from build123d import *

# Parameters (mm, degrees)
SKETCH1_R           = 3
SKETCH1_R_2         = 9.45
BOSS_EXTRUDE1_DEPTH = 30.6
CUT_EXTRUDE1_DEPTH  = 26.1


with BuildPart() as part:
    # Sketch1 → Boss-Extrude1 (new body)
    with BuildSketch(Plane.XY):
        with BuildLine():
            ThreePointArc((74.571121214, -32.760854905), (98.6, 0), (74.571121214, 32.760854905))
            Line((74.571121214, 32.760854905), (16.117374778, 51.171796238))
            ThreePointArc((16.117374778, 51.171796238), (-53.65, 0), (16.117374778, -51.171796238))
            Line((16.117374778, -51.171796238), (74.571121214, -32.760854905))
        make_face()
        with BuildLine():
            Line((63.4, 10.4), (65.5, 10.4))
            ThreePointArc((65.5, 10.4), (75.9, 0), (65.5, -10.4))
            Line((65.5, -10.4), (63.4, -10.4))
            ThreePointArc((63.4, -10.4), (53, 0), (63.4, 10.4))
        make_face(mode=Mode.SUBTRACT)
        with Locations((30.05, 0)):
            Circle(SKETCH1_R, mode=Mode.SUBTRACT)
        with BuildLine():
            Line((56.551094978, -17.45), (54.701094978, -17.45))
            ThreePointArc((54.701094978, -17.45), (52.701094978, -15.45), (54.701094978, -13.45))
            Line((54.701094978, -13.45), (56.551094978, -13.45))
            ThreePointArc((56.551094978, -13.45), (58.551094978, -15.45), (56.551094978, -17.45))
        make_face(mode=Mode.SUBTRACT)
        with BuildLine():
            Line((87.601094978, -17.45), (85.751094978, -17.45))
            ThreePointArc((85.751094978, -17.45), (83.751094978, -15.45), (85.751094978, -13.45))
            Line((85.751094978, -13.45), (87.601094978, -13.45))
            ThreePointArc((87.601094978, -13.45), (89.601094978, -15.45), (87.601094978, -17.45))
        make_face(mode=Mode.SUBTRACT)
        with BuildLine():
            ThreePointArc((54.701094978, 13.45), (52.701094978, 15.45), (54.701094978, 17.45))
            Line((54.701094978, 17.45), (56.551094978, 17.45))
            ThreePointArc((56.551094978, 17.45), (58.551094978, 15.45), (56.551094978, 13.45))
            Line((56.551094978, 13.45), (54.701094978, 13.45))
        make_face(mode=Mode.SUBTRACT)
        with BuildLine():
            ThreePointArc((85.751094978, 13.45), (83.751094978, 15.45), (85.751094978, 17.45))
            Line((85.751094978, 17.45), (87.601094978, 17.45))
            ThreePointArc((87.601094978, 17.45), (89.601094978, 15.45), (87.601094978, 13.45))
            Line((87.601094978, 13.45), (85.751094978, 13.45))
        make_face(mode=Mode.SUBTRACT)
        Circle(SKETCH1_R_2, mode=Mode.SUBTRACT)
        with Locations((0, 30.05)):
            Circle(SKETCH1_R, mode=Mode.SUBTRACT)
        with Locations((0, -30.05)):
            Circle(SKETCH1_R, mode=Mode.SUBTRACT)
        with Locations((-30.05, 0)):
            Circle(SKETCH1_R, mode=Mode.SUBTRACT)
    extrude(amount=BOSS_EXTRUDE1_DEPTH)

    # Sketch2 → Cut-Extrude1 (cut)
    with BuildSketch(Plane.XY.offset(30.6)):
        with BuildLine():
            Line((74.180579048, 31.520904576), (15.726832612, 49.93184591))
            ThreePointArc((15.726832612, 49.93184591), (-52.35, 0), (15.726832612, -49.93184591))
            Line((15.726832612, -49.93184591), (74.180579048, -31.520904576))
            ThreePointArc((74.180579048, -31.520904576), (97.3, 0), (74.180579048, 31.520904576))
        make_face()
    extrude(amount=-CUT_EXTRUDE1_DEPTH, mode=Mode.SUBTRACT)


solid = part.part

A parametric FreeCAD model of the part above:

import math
import FreeCAD as App
import Part
import Sketcher

V = App.Vector

doc = App.newDocument("Part")
params = doc.addObject("Spreadsheet::Sheet", "Params")
for row, (alias, value) in enumerate([
    ("sketch1_diameter", "6 mm"),
    ("sketch1_radius", "2 mm"),
    ("sketch1_diameter2", "18.9 mm"),
    ("sketch1_radius2", "10.4 mm"),
    ("sketch1_radius3", "53.65 mm"),
    ("pad1_length", "30.6 mm"),
    ("sketch2_radius", "52.35 mm"),
    ("pocket1_length", "26.1 mm"),
], start=1):
    params.set(f"A{row}", alias)
    params.set(f"B{row}", "=" + value)
    params.setAlias(f"B{row}", alias)

body = doc.addObject("PartDesign::Body", "Body")

sketch1 = body.newObject("Sketcher::SketchObject", "Sketch")
sketch1.AttachmentSupport = (doc.getObject("XY_Plane"), [""])
sketch1.MapMode = "FlatFace"
sketch1.addGeometry(Part.ArcOfCircle(Part.Circle(V(64.3, 0, 0), V(0, 0, 1), 34.3), math.radians(-73), math.radians(73)), False)
sketch1.addGeometry(Part.LineSegment(V(74.6, 32.8, 0), V(16.1, 51.2, 0)), False)
sketch1.addGeometry(Part.ArcOfCircle(Part.Circle(V(0, 0, 0), V(0, 0, 1), 53.6), math.radians(73), math.radians(287)), False)
sketch1.addGeometry(Part.LineSegment(V(16.1, -51.2, 0), V(74.6, -32.8, 0)), False)
sketch1.addGeometry(Part.Circle(V(0, -30.1, 0), V(0, 0, 1), 3), False)
sketch1.addGeometry(Part.ArcOfCircle(Part.Circle(V(56.6, -15.4, 0), V(0, 0, 1), 2), math.radians(-90), math.radians(90)), False)
sketch1.addGeometry(Part.LineSegment(V(56.6, -17.4, 0), V(54.7, -17.4, 0)), False)
sketch1.addGeometry(Part.ArcOfCircle(Part.Circle(V(54.7, -15.4, 0), V(0, 0, 1), 2), math.radians(90), math.radians(270)), False)
sketch1.addGeometry(Part.LineSegment(V(54.7, -13.4, 0), V(56.6, -13.4, 0)), False)
sketch1.addGeometry(Part.ArcOfCircle(Part.Circle(V(87.6, -15.4, 0), V(0, 0, 1), 2), math.radians(-90), math.radians(90)), False)
sketch1.addGeometry(Part.LineSegment(V(87.6, -17.4, 0), V(85.8, -17.4, 0)), False)
sketch1.addGeometry(Part.ArcOfCircle(Part.Circle(V(85.8, -15.4, 0), V(0, 0, 1), 2), math.radians(90), math.radians(270)), False)
sketch1.addGeometry(Part.LineSegment(V(85.8, -13.4, 0), V(87.6, -13.4, 0)), False)
sketch1.addGeometry(Part.Circle(V(-30.1, 0, 0), V(0, 0, 1), 3), False)
sketch1.addGeometry(Part.Circle(V(0, 0, 0), V(0, 0, 1), 9.4), False)
sketch1.addGeometry(Part.Circle(V(0, 30.1, 0), V(0, 0, 1), 3), False)
sketch1.addGeometry(Part.Circle(V(30.1, 0, 0), V(0, 0, 1), 3), False)
sketch1.addGeometry(Part.LineSegment(V(56.6, 13.4, 0), V(54.7, 13.4, 0)), False)
sketch1.addGeometry(Part.ArcOfCircle(Part.Circle(V(54.7, 15.4, 0), V(0, 0, 1), 2), math.radians(90), math.radians(270)), False)
sketch1.addGeometry(Part.LineSegment(V(54.7, 17.4, 0), V(56.6, 17.4, 0)), False)
sketch1.addGeometry(Part.ArcOfCircle(Part.Circle(V(56.6, 15.4, 0), V(0, 0, 1), 2), math.radians(-90), math.radians(90)), False)
sketch1.addGeometry(Part.ArcOfCircle(Part.Circle(V(63.4, 0, 0), V(0, 0, 1), 10.4), math.radians(90), math.radians(270)), False)
sketch1.addGeometry(Part.LineSegment(V(63.4, 10.4, 0), V(65.5, 10.4, 0)), False)
sketch1.addGeometry(Part.ArcOfCircle(Part.Circle(V(65.5, 0, 0), V(0, 0, 1), 10.4), math.radians(-90), math.radians(90)), False)
sketch1.addGeometry(Part.LineSegment(V(65.5, -10.4, 0), V(63.4, -10.4, 0)), False)
sketch1.addGeometry(Part.LineSegment(V(87.6, 13.4, 0), V(85.8, 13.4, 0)), False)
sketch1.addGeometry(Part.ArcOfCircle(Part.Circle(V(85.8, 15.4, 0), V(0, 0, 1), 2), math.radians(90), math.radians(270)), False)
sketch1.addGeometry(Part.LineSegment(V(85.8, 17.4, 0), V(87.6, 17.4, 0)), False)
sketch1.addGeometry(Part.ArcOfCircle(Part.Circle(V(87.6, 15.4, 0), V(0, 0, 1), 2), math.radians(-90), math.radians(90)), False)
sketch1.addConstraint(Sketcher.Constraint("Tangent", 0, 2, 1, 1))
sketch1.addConstraint(Sketcher.Constraint("Tangent", 1, 2, 2, 1))
sketch1.addConstraint(Sketcher.Constraint("Tangent", 2, 2, 3, 1))
sketch1.addConstraint(Sketcher.Constraint("Tangent", 3, 2, 0, 1))
sketch1.addConstraint(Sketcher.Constraint("Tangent", 5, 1, 6, 1))
sketch1.addConstraint(Sketcher.Constraint("Tangent", 6, 2, 7, 2))
sketch1.addConstraint(Sketcher.Constraint("Tangent", 7, 1, 8, 1))
sketch1.addConstraint(Sketcher.Constraint("Tangent", 8, 2, 5, 2))
sketch1.addConstraint(Sketcher.Constraint("Tangent", 9, 1, 10, 1))
sketch1.addConstraint(Sketcher.Constraint("Tangent", 10, 2, 11, 2))
sketch1.addConstraint(Sketcher.Constraint("Tangent", 11, 1, 12, 1))
sketch1.addConstraint(Sketcher.Constraint("Tangent", 12, 2, 9, 2))
sketch1.addConstraint(Sketcher.Constraint("Tangent", 17, 2, 18, 2))
sketch1.addConstraint(Sketcher.Constraint("Tangent", 18, 1, 19, 1))
sketch1.addConstraint(Sketcher.Constraint("Tangent", 19, 2, 20, 2))
sketch1.addConstraint(Sketcher.Constraint("Tangent", 20, 1, 17, 1))
sketch1.addConstraint(Sketcher.Constraint("Tangent", 21, 1, 22, 1))
sketch1.addConstraint(Sketcher.Constraint("Tangent", 22, 2, 23, 2))
sketch1.addConstraint(Sketcher.Constraint("Tangent", 23, 1, 24, 1))
sketch1.addConstraint(Sketcher.Constraint("Tangent", 24, 2, 21, 2))
sketch1.addConstraint(Sketcher.Constraint("Tangent", 25, 2, 26, 2))
sketch1.addConstraint(Sketcher.Constraint("Tangent", 26, 1, 27, 1))
sketch1.addConstraint(Sketcher.Constraint("Tangent", 27, 2, 28, 2))
sketch1.addConstraint(Sketcher.Constraint("Tangent", 28, 1, 25, 1))
sketch1.addConstraint(Sketcher.Constraint("Horizontal", 6))
sketch1.addConstraint(Sketcher.Constraint("Horizontal", 8))
sketch1.addConstraint(Sketcher.Constraint("Horizontal", 10))
sketch1.addConstraint(Sketcher.Constraint("Horizontal", 12))
sketch1.addConstraint(Sketcher.Constraint("Horizontal", 17))
sketch1.addConstraint(Sketcher.Constraint("Horizontal", 19))
sketch1.addConstraint(Sketcher.Constraint("Horizontal", 22))
sketch1.addConstraint(Sketcher.Constraint("Horizontal", 24))
sketch1.addConstraint(Sketcher.Constraint("Horizontal", 25))
sketch1.addConstraint(Sketcher.Constraint("Horizontal", 27))
sketch1.addConstraint(Sketcher.Constraint("Coincident", 2, 3, -1, 1))
sketch1.addConstraint(Sketcher.Constraint("Coincident", 14, 3, -1, 1))
sketch1.addConstraint(Sketcher.Constraint("Equal", 7, 9))
sketch1.addConstraint(Sketcher.Constraint("Equal", 4, 13))
sketch1.addConstraint(Sketcher.Constraint("Equal", 13, 15))
sketch1.addConstraint(Sketcher.Constraint("Equal", 15, 16))
sketch1.addConstraint(Sketcher.Constraint("Equal", 11, 18))
sketch1.addConstraint(Sketcher.Constraint("Equal", 20, 26))
sketch1.addConstraint(Sketcher.Constraint("Symmetric", 4, 3, 15, 3, -1, 1))
sketch1.addConstraint(Sketcher.Constraint("Symmetric", 13, 3, 16, 3, -1, 1))
sketch1.addConstraint(Sketcher.Constraint("Symmetric", 7, 3, 18, 3, -1))
sketch1.addConstraint(Sketcher.Constraint("Symmetric", 11, 3, 26, 3, -1))
sketch1.addConstraint(Sketcher.Constraint("PointOnObject", 0, 3, -1))
sketch1.addConstraint(Sketcher.Constraint("PointOnObject", 4, 3, -2))
sketch1.addConstraint(Sketcher.Constraint("PointOnObject", 13, 3, -1))
sketch1.addConstraint(Sketcher.Constraint("PointOnObject", 21, 3, -1))
sketch1.addConstraint(Sketcher.Constraint("Horizontal", 7, 3, 9, 3))
sketch1.addConstraint(Sketcher.Constraint("Vertical", 5, 3, 20, 3))
sketch1.addConstraint(Sketcher.Constraint("Vertical", 9, 3, 28, 3))
sketch1.addConstraint(Sketcher.Constraint("Equal", 8, 10))
sketch1.addConstraint(Sketcher.Constraint("Diameter", 4, 6.0))
sketch1.addConstraint(Sketcher.Constraint("Radius", 5, 2.0))
sketch1.addConstraint(Sketcher.Constraint("Diameter", 14, 18.9))
sketch1.addConstraint(Sketcher.Constraint("Radius", 21, 10.4))
sketch1.addConstraint(Sketcher.Constraint("Radius", 2, 53.65))
sketch1.addConstraint(Sketcher.Constraint("DistanceX", 22, 1, 22, 2, 2.1))
sketch1.addConstraint(Sketcher.Constraint("DistanceX", 6, 2, 6, 1, 1.85))
sketch1.addConstraint(Sketcher.Constraint("DistanceX", -1, 1, 21, 3, 63.4))
sketch1.addConstraint(Sketcher.Constraint("DistanceY", 4, 3, 5, 3, 14.6))
sketch1.addConstraint(Sketcher.Constraint("DistanceX", 7, 3, 9, 3, 32.9))
sketch1.addConstraint(Sketcher.Constraint("DistanceY", 4, 3, 15, 3, 60.1))
sketch1.addConstraint(Sketcher.Constraint("DistanceX", 13, 3, -1, 1, 30.05))
sketch1.addConstraint(Sketcher.Constraint("Radius", 0, 34.347433))
sketch1.addConstraint(Sketcher.Constraint("Distance", 1, 61.284608))
sketch1.addConstraint(Sketcher.Constraint("DistanceX", 5, 3, 0, 3, 7.701472))
sketch1.setExpression("Constraints[54]", "Params.sketch1_diameter")
sketch1.setExpression("Constraints[55]", "Params.sketch1_radius")
sketch1.setExpression("Constraints[56]", "Params.sketch1_diameter2")
sketch1.setExpression("Constraints[57]", "Params.sketch1_radius2")
sketch1.setExpression("Constraints[58]", "Params.sketch1_radius3")
pad1 = body.newObject("PartDesign::Pad", "Pad")
pad1.Profile = sketch1
pad1.setExpression("Length", "Params.pad1_length")

sketch2 = body.newObject("Sketcher::SketchObject", "Sketch001")
sketch2.AttachmentSupport = (doc.getObject("XY_Plane"), [""])
sketch2.MapMode = "FlatFace"
sketch2.AttachmentOffset = App.Placement(V(0, 0, 30.6), App.Rotation())
sketch2.addGeometry(Part.LineSegment(V(74, 32, 0), V(16, 50, 0)), False)
sketch2.addGeometry(Part.ArcOfCircle(Part.Circle(V(0, 0, 0), V(0, 0, 1), 52), math.radians(73), math.radians(287)), False)
sketch2.addGeometry(Part.LineSegment(V(16, -50, 0), V(74, -32, 0)), False)
sketch2.addGeometry(Part.ArcOfCircle(Part.Circle(V(64, 0, 0), V(0, 0, 1), 33), math.radians(-73), math.radians(73)), False)
sketch2.addConstraint(Sketcher.Constraint("Tangent", 0, 2, 1, 1))
sketch2.addConstraint(Sketcher.Constraint("Tangent", 1, 2, 2, 1))
sketch2.addConstraint(Sketcher.Constraint("Tangent", 2, 2, 3, 1))
sketch2.addConstraint(Sketcher.Constraint("Tangent", 3, 2, 0, 1))
sketch2.addConstraint(Sketcher.Constraint("Coincident", 1, 3, -1, 1))
sketch2.addConstraint(Sketcher.Constraint("PointOnObject", 3, 3, -1))
sketch2.addConstraint(Sketcher.Constraint("Radius", 1, 52.35))
sketch2.addConstraint(Sketcher.Constraint("Radius", 3, 33.047433))
sketch2.addConstraint(Sketcher.Constraint("Distance", 0, 61.284608))
sketch2.setExpression("Constraints[6]", "Params.sketch2_radius")
pocket1 = body.newObject("PartDesign::Pocket", "Pocket")
pocket1.Profile = sketch2
pocket1.setExpression("Length", "Params.pocket1_length")

doc.recompute()
